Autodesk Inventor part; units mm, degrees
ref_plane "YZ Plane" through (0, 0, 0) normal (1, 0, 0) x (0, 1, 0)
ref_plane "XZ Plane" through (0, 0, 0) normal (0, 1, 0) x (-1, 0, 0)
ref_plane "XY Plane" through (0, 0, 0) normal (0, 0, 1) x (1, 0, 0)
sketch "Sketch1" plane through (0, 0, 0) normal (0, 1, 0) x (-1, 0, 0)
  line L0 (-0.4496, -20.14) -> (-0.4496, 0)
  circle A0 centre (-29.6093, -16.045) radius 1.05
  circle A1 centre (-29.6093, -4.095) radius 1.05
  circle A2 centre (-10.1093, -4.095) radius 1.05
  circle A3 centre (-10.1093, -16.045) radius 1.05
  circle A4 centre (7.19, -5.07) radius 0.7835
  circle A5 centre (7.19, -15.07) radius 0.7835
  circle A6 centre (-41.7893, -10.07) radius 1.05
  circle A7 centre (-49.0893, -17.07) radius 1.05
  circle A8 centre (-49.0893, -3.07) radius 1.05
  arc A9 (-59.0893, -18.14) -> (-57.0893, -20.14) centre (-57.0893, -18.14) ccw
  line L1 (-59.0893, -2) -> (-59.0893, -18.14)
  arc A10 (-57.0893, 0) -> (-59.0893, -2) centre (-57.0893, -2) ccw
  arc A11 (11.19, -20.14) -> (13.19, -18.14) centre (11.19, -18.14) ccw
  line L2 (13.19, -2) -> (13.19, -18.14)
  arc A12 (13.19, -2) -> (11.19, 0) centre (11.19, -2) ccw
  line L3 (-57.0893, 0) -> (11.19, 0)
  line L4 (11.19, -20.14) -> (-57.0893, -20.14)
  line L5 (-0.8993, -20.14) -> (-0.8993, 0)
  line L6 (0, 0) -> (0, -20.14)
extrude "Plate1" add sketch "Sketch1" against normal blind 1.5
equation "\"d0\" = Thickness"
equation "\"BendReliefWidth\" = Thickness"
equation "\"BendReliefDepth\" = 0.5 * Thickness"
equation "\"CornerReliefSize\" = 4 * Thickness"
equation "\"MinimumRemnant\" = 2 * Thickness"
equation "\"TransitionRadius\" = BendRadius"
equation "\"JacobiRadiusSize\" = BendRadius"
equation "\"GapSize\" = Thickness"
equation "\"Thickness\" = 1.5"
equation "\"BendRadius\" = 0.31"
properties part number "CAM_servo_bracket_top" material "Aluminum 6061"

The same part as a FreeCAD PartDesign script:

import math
import FreeCAD as App
import Part
import Sketcher

V = App.Vector
Q = App.Units.Quantity

doc = App.newDocument("Part")
body = doc.addObject("PartDesign::Body", "Body")

# Sketch on XZ plane
sketch1 = body.newObject("Sketcher::SketchObject", "Sketch")
sketch1.AttachmentSupport = (doc.getObject("XZ_Plane"), [""])
sketch1.MapMode = "FlatFace"
sketch1.addGeometry([
    Part.ArcOfCircle(Part.Circle(V(-11.2, -18.1, 0), V(0, 0, 1), 2), math.radians(180), math.radians(270)),  # 0
    Part.LineSegment(V(-13.2, -18.1, 0), V(-13.2, -2, 0)),  # 1
    Part.ArcOfCircle(Part.Circle(V(-11.2, -2, 0), V(0, 0, 1), 2), math.radians(90), math.radians(180)),  # 2
    Part.LineSegment(V(-11.2, 0, 0), V(57.1, 0, 0)),  # 3
    Part.ArcOfCircle(Part.Circle(V(57.1, -2, 0), V(0, 0, 1), 2), math.radians(0), math.radians(90)),  # 4
    Part.LineSegment(V(59.1, -2, 0), V(59.1, -18.1, 0)),  # 5
    Part.ArcOfCircle(Part.Circle(V(57.1, -18.1, 0), V(0, 0, 1), 2), math.radians(-90), math.radians(0)),  # 6
    Part.LineSegment(V(57.1, -20.1, 0), V(-11.2, -20.1, 0)),  # 7
    Part.Circle(V(10.1, -4.1, 0), V(0, 0, 1), 1.1),  # 8
    Part.Circle(V(49.1, -17.1, 0), V(0, 0, 1), 1.1),  # 9
    Part.Circle(V(29.6, -16, 0), V(0, 0, 1), 1.1),  # 10
    Part.Circle(V(10.1, -16, 0), V(0, 0, 1), 1.1),  # 11
    Part.Circle(V(41.8, -10.1, 0), V(0, 0, 1), 1.1),  # 12
    Part.Circle(V(49.1, -3.1, 0), V(0, 0, 1), 1.1),  # 13
    Part.Circle(V(29.6, -4.1, 0), V(0, 0, 1), 1.1),  # 14
    Part.Circle(V(-7.2, -5.1, 0), V(0, 0, 1), 0.8),  # 15
    Part.Circle(V(-7.2, -15.1, 0), V(0, 0, 1), 0.8),  # 16
], False)
sketch1.addConstraint([
    Sketcher.Constraint("Tangent", 0, 1, 1, 1),
    Sketcher.Constraint("Tangent", 1, 2, 2, 2),
    Sketcher.Constraint("Tangent", 2, 1, 3, 1),
    Sketcher.Constraint("Tangent", 3, 2, 4, 2),
    Sketcher.Constraint("Tangent", 4, 1, 5, 1),
    Sketcher.Constraint("Tangent", 5, 2, 6, 2),
    Sketcher.Constraint("Tangent", 6, 1, 7, 1),
    Sketcher.Constraint("Tangent", 7, 2, 0, 2),
    Sketcher.Constraint("Vertical", 1),
    Sketcher.Constraint("Horizontal", 3),
    Sketcher.Constraint("Vertical", 5),
    Sketcher.Constraint("Horizontal", 7),
    Sketcher.Constraint("Equal", 0, 2),
    Sketcher.Constraint("Equal", 2, 4),
    Sketcher.Constraint("Equal", 4, 6),
    Sketcher.Constraint("Equal", 8, 9),
    Sketcher.Constraint("Equal", 9, 10),
    Sketcher.Constraint("Equal", 10, 11),
    Sketcher.Constraint("Equal", 11, 12),
    Sketcher.Constraint("Equal", 12, 13),
    Sketcher.Constraint("Equal", 13, 14),
    Sketcher.Constraint("Equal", 15, 16),
    Sketcher.Constraint("PointOnObject", 2, 1, -1),
    Sketcher.Constraint("Horizontal", 10, 3, 11, 3),
    Sketcher.Constraint("Horizontal", 8, 3, 14, 3),
    Sketcher.Constraint("Vertical", 8, 3, 11, 3),
    Sketcher.Constraint("Vertical", 9, 3, 13, 3),
    Sketcher.Constraint("Vertical", 10, 3, 14, 3),
    Sketcher.Constraint("Vertical", 15, 3, 16, 3),
    Sketcher.Constraint("Radius", 0, Q("2 mm")),
    Sketcher.Constraint("Diameter", 8, Q("2.1 mm")),
    Sketcher.Constraint("Diameter", 15, Q("1.567 mm")),
    Sketcher.Constraint("DistanceX", 9, 3, 6, 3, Q("8 mm")),
    Sketcher.Constraint("DistanceY", 9, 3, 12, 3, Q("7 mm")),
    Sketcher.Constraint("DistanceY", 12, 3, 13, 3, Q("7 mm")),
    Sketcher.Constraint("DistanceX", 2, 3, 15, 3, Q("4 mm")),
    Sketcher.Constraint("DistanceY", 16, 3, 15, 3, Q("10 mm")),
    Sketcher.Constraint("DistanceY", 1, 1, 1, 2, Q("16.14 mm")),
    Sketcher.Constraint("DistanceX", 8, 3, 10, 3, Q("19.5 mm")),
    Sketcher.Constraint("DistanceX", 12, 3, 9, 3, Q("7.3 mm")),
    Sketcher.Constraint("DistanceX", 0, 3, -1, 1, Q("11.19 mm")),
    Sketcher.Constraint("DistanceY", 9, 3, -1, 1, Q("17.07 mm")),
    Sketcher.Constraint("DistanceY", 15, 3, -1, 1, Q("5.07 mm")),
    Sketcher.Constraint("DistanceX", 8, 3, 4, 3, Q("46.98 mm")),
    Sketcher.Constraint("DistanceY", 10, 3, 8, 3, Q("11.95 mm")),
    Sketcher.Constraint("DistanceX", 3, 1, 3, 2, Q("68.2793 mm")),
    Sketcher.Constraint("DistanceY", 8, 3, -1, 1, Q("4.095 mm")),
])
pad1 = body.newObject("PartDesign::Pad", "Pad")
pad1.Profile = sketch1
pad1.Length = 1.5

doc.recompute()
